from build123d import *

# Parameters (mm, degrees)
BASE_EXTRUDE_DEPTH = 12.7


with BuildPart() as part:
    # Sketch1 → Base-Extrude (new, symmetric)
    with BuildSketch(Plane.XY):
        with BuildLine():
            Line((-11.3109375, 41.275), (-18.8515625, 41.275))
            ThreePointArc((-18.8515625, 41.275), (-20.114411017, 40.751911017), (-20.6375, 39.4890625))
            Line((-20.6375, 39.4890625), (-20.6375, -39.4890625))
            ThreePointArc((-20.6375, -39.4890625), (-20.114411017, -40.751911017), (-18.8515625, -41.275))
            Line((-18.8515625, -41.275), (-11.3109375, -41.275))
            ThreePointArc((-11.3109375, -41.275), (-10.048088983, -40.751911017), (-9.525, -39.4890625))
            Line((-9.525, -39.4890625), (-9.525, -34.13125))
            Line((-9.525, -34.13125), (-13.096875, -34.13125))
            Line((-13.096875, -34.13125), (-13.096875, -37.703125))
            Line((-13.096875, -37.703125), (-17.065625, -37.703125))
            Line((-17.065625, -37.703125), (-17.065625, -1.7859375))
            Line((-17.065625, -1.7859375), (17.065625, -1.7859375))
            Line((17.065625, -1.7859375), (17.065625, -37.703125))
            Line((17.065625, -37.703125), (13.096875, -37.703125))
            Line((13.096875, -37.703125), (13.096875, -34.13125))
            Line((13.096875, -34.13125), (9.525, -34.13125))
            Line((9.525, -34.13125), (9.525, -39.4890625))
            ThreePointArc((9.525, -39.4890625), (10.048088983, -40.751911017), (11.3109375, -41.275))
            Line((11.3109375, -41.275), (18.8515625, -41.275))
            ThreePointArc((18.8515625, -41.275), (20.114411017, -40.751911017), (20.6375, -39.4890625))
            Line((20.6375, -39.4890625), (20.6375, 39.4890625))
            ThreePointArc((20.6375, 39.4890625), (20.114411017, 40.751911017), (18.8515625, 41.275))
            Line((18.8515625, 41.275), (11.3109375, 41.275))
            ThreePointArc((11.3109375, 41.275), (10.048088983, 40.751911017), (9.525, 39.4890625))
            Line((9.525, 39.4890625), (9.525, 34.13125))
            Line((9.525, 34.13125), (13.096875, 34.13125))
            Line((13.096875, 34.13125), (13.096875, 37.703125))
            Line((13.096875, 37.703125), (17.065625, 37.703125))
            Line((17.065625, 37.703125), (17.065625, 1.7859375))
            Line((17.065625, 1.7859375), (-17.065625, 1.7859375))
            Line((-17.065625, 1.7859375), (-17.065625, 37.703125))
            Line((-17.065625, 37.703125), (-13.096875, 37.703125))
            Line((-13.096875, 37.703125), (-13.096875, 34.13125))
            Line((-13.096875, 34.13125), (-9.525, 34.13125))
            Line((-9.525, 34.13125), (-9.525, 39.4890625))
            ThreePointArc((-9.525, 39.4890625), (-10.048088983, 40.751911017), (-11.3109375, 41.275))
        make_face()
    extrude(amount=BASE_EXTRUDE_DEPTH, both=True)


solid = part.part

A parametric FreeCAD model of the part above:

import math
import FreeCAD as App
import Part
import Sketcher

V = App.Vector
Q = App.Units.Quantity

doc = App.newDocument("Part")
body = doc.addObject("PartDesign::Body", "Body")

# Sketch on XY plane
sketch1 = body.newObject("Sketcher::SketchObject", "Sketch")
sketch1.AttachmentSupport = (doc.getObject("XY_Plane"), [""])
sketch1.MapMode = "FlatFace"
sketch1.addGeometry([
    Part.LineSegment(V(-11.3, 41.3, 0), V(-18.9, 41.3, 0)),  # 0
    Part.ArcOfCircle(Part.Circle(V(-18.9, 39.5, 0), V(0, 0, 1), 1.8), math.radians(90), math.radians(180)),  # 1
    Part.LineSegment(V(-20.6, 39.5, 0), V(-20.6, -39.5, 0)),  # 2
    Part.ArcOfCircle(Part.Circle(V(-18.9, -39.5, 0), V(0, 0, 1), 1.8), math.radians(180), math.radians(270)),  # 3
    Part.LineSegment(V(-18.9, -41.3, 0), V(-11.3, -41.3, 0)),  # 4
    Part.ArcOfCircle(Part.Circle(V(-11.3, -39.5, 0), V(0, 0, 1), 1.8), math.radians(-90), math.radians(0)),  # 5
    Part.LineSegment(V(-9.5, -39.5, 0), V(-9.5, -34.1, 0)),  # 6
    Part.LineSegment(V(-9.5, -34.1, 0), V(-13.1, -34.1, 0)),  # 7
    Part.LineSegment(V(-13.1, -34.1, 0), V(-13.1, -37.7, 0)),  # 8
    Part.LineSegment(V(-13.1, -37.7, 0), V(-17.1, -37.7, 0)),  # 9
    Part.LineSegment(V(-17.1, -37.7, 0), V(-17.1, -1.8, 0)),  # 10
    Part.LineSegment(V(-17.1, -1.8, 0), V(17.1, -1.8, 0)),  # 11
    Part.LineSegment(V(17.1, -1.8, 0), V(17.1, -37.7, 0)),  # 12
    Part.LineSegment(V(17.1, -37.7, 0), V(13.1, -37.7, 0)),  # 13
    Part.LineSegment(V(13.1, -37.7, 0), V(13.1, -34.1, 0)),  # 14
    Part.LineSegment(V(13.1, -34.1, 0), V(9.5, -34.1, 0)),  # 15
    Part.LineSegment(V(9.5, -34.1, 0), V(9.5, -39.5, 0)),  # 16
    Part.ArcOfCircle(Part.Circle(V(11.3, -39.5, 0), V(0, 0, 1), 1.8), math.radians(180), math.radians(270)),  # 17
    Part.LineSegment(V(11.3, -41.3, 0), V(18.9, -41.3, 0)),  # 18
    Part.ArcOfCircle(Part.Circle(V(18.9, -39.5, 0), V(0, 0, 1), 1.8), math.radians(-90), math.radians(0)),  # 19
    Part.LineSegment(V(20.6, -39.5, 0), V(20.6, 39.5, 0)),  # 20
    Part.ArcOfCircle(Part.Circle(V(18.9, 39.5, 0), V(0, 0, 1), 1.8), math.radians(0), math.radians(90)),  # 21
    Part.LineSegment(V(18.9, 41.3, 0), V(11.3, 41.3, 0)),  # 22
    Part.ArcOfCircle(Part.Circle(V(11.3, 39.5, 0), V(0, 0, 1), 1.8), math.radians(90), math.radians(180)),  # 23
    Part.LineSegment(V(9.5, 39.5, 0), V(9.5, 34.1, 0)),  # 24
    Part.LineSegment(V(9.5, 34.1, 0), V(13.1, 34.1, 0)),  # 25
    Part.LineSegment(V(13.1, 34.1, 0), V(13.1, 37.7, 0)),  # 26
    Part.LineSegment(V(13.1, 37.7, 0), V(17.1, 37.7, 0)),  # 27
    Part.LineSegment(V(17.1, 37.7, 0), V(17.1, 1.8, 0)),  # 28
    Part.LineSegment(V(17.1, 1.8, 0), V(-17.1, 1.8, 0)),  # 29
    Part.LineSegment(V(-17.1, 1.8, 0), V(-17.1, 37.7, 0)),  # 30
    Part.LineSegment(V(-17.1, 37.7, 0), V(-13.1, 37.7, 0)),  # 31
    Part.LineSegment(V(-13.1, 37.7, 0), V(-13.1, 34.1, 0)),  # 32
    Part.LineSegment(V(-13.1, 34.1, 0), V(-9.5, 34.1, 0)),  # 33
    Part.LineSegment(V(-9.5, 34.1, 0), V(-9.5, 39.5, 0)),  # 34
    Part.ArcOfCircle(Part.Circle(V(-11.3, 39.5, 0), V(0, 0, 1), 1.8), math.radians(0), math.radians(90)),  # 35
], False)
sketch1.addConstraint([
    Sketcher.Constraint("Tangent", 0, 2, 1, 1),
    Sketcher.Constraint("Tangent", 1, 2, 2, 1),
    Sketcher.Constraint("Tangent", 2, 2, 3, 1),
    Sketcher.Constraint("Tangent", 3, 2, 4, 1),
    Sketcher.Constraint("Tangent", 4, 2, 5, 1),
    Sketcher.Constraint("Tangent", 5, 2, 6, 1),
    Sketcher.Constraint("Coincident", 6, 2, 7, 1),
    Sketcher.Constraint("Coincident", 7, 2, 8, 1),
    Sketcher.Constraint("Coincident", 8, 2, 9, 1),
    Sketcher.Constraint("Coincident", 9, 2, 10, 1),
    Sketcher.Constraint("Coincident", 10, 2, 11, 1),
    Sketcher.Constraint("Coincident", 11, 2, 12, 1),
    Sketcher.Constraint("Coincident", 12, 2, 13, 1),
    Sketcher.Constraint("Coincident", 13, 2, 14, 1),
    Sketcher.Constraint("Coincident", 14, 2, 15, 1),
    Sketcher.Constraint("Coincident", 15, 2, 16, 1),
    Sketcher.Constraint("Tangent", 16, 2, 17, 1),
    Sketcher.Constraint("Tangent", 17, 2, 18, 1),
    Sketcher.Constraint("Tangent", 18, 2, 19, 1),
    Sketcher.Constraint("Tangent", 19, 2, 20, 1),
    Sketcher.Constraint("Tangent", 20, 2, 21, 1),
    Sketcher.Constraint("Tangent", 21, 2, 22, 1),
    Sketcher.Constraint("Tangent", 22, 2, 23, 1),
    Sketcher.Constraint("Tangent", 23, 2, 24, 1),
    Sketcher.Constraint("Coincident", 24, 2, 25, 1),
    Sketcher.Constraint("Coincident", 25, 2, 26, 1),
    Sketcher.Constraint("Coincident", 26, 2, 27, 1),
    Sketcher.Constraint("Coincident", 27, 2, 28, 1),
    Sketcher.Constraint("Coincident", 28, 2, 29, 1),
    Sketcher.Constraint("Coincident", 29, 2, 30, 1),
    Sketcher.Constraint("Coincident", 30, 2, 31, 1),
    Sketcher.Constraint("Coincident", 31, 2, 32, 1),
    Sketcher.Constraint("Coincident", 32, 2, 33, 1),
    Sketcher.Constraint("Coincident", 33, 2, 34, 1),
    Sketcher.Constraint("Tangent", 34, 2, 35, 1),
    Sketcher.Constraint("Tangent", 35, 2, 0, 1),
    Sketcher.Constraint("Horizontal", 0),
    Sketcher.Constraint("Vertical", 2),
    Sketcher.Constraint("Horizontal", 4),
    Sketcher.Constraint("Vertical", 6),
    Sketcher.Constraint("Horizontal", 7),
    Sketcher.Constraint("Vertical", 8),
    Sketcher.Constraint("Horizontal", 9),
    Sketcher.Constraint("Vertical", 10),
    Sketcher.Constraint("Horizontal", 11),
    Sketcher.Constraint("Vertical", 12),
    Sketcher.Constraint("Horizontal", 13),
    Sketcher.Constraint("Vertical", 14),
    Sketcher.Constraint("Horizontal", 15),
    Sketcher.Constraint("Vertical", 16),
    Sketcher.Constraint("Horizontal", 18),
    Sketcher.Constraint("Vertical", 20),
    Sketcher.Constraint("Horizontal", 22),
    Sketcher.Constraint("Vertical", 24),
    Sketcher.Constraint("Horizontal", 25),
    Sketcher.Constraint("Vertical", 26),
    Sketcher.Constraint("Horizontal", 27),
    Sketcher.Constraint("Vertical", 28),
    Sketcher.Constraint("Horizontal", 29),
    Sketcher.Constraint("Vertical", 30),
    Sketcher.Constraint("Horizontal", 31),
    Sketcher.Constraint("Vertical", 32),
    Sketcher.Constraint("Horizontal", 33),
    Sketcher.Constraint("Vertical", 34),
    Sketcher.Constraint("Equal", 1, 3),
    Sketcher.Constraint("Equal", 3, 5),
    Sketcher.Constraint("Equal", 5, 17),
    Sketcher.Constraint("Equal", 17, 19),
    Sketcher.Constraint("Equal", 19, 21),
    Sketcher.Constraint("Equal", 21, 23),
    Sketcher.Constraint("Equal", 23, 35),
    Sketcher.Constraint("Symmetric", 1, 3, 19, 3, -1, 1),
    Sketcher.Constraint("Symmetric", 5, 3, 23, 3, -1, 1),
    Sketcher.Constraint("Symmetric", 7, 2, 25, 2, -1, 1),
    Sketcher.Constraint("Symmetric", 9, 2, 27, 2, -1, 1),
    Sketcher.Constraint("Symmetric", 11, 2, 29, 2, -1, 1),
    Sketcher.Constraint("Symmetric", 13, 2, 31, 2, -1, 1),
    Sketcher.Constraint("Symmetric", 15, 2, 33, 2, -1, 1),
    Sketcher.Constraint("Symmetric", 5, 3, 17, 3, -2),
    Sketcher.Constraint("Symmetric", 9, 2, 12, 2, -2),
    Sketcher.Constraint("Symmetric", 7, 2, 14, 2, -2),
    Sketcher.Constraint("Equal", 33, 8),
    Sketcher.Constraint("DistanceX", 0, 2, 0, 1, Q("0.296875 in")),
    Sketcher.Constraint("DistanceX", 7, 2, 7, 1, Q("0.140625 in")),
    Sketcher.Constraint("DistanceX", 9, 2, 9, 1, Q("0.15625 in")),
    Sketcher.Constraint("DistanceX", 11, 1, 11, 2, Q("1.34375 in")),
    Sketcher.Constraint("DistanceY", 2, 2, 2, 1, Q("3.109375 in")),
    Sketcher.Constraint("DistanceY", -1, 1, 0, 2, Q("1.625 in")),
    Sketcher.Constraint("DistanceY", 6, 2, -1, 1, Q("1.34375 in")),
    Sketcher.Constraint("DistanceY", 3, 3, 10, 2, Q("1.484375 in")),
])
pad1 = body.newObject("PartDesign::Pad", "Pad")
pad1.Profile = sketch1
pad1.Length = Q("1 in")
pad1.Midplane = True

doc.recompute()
